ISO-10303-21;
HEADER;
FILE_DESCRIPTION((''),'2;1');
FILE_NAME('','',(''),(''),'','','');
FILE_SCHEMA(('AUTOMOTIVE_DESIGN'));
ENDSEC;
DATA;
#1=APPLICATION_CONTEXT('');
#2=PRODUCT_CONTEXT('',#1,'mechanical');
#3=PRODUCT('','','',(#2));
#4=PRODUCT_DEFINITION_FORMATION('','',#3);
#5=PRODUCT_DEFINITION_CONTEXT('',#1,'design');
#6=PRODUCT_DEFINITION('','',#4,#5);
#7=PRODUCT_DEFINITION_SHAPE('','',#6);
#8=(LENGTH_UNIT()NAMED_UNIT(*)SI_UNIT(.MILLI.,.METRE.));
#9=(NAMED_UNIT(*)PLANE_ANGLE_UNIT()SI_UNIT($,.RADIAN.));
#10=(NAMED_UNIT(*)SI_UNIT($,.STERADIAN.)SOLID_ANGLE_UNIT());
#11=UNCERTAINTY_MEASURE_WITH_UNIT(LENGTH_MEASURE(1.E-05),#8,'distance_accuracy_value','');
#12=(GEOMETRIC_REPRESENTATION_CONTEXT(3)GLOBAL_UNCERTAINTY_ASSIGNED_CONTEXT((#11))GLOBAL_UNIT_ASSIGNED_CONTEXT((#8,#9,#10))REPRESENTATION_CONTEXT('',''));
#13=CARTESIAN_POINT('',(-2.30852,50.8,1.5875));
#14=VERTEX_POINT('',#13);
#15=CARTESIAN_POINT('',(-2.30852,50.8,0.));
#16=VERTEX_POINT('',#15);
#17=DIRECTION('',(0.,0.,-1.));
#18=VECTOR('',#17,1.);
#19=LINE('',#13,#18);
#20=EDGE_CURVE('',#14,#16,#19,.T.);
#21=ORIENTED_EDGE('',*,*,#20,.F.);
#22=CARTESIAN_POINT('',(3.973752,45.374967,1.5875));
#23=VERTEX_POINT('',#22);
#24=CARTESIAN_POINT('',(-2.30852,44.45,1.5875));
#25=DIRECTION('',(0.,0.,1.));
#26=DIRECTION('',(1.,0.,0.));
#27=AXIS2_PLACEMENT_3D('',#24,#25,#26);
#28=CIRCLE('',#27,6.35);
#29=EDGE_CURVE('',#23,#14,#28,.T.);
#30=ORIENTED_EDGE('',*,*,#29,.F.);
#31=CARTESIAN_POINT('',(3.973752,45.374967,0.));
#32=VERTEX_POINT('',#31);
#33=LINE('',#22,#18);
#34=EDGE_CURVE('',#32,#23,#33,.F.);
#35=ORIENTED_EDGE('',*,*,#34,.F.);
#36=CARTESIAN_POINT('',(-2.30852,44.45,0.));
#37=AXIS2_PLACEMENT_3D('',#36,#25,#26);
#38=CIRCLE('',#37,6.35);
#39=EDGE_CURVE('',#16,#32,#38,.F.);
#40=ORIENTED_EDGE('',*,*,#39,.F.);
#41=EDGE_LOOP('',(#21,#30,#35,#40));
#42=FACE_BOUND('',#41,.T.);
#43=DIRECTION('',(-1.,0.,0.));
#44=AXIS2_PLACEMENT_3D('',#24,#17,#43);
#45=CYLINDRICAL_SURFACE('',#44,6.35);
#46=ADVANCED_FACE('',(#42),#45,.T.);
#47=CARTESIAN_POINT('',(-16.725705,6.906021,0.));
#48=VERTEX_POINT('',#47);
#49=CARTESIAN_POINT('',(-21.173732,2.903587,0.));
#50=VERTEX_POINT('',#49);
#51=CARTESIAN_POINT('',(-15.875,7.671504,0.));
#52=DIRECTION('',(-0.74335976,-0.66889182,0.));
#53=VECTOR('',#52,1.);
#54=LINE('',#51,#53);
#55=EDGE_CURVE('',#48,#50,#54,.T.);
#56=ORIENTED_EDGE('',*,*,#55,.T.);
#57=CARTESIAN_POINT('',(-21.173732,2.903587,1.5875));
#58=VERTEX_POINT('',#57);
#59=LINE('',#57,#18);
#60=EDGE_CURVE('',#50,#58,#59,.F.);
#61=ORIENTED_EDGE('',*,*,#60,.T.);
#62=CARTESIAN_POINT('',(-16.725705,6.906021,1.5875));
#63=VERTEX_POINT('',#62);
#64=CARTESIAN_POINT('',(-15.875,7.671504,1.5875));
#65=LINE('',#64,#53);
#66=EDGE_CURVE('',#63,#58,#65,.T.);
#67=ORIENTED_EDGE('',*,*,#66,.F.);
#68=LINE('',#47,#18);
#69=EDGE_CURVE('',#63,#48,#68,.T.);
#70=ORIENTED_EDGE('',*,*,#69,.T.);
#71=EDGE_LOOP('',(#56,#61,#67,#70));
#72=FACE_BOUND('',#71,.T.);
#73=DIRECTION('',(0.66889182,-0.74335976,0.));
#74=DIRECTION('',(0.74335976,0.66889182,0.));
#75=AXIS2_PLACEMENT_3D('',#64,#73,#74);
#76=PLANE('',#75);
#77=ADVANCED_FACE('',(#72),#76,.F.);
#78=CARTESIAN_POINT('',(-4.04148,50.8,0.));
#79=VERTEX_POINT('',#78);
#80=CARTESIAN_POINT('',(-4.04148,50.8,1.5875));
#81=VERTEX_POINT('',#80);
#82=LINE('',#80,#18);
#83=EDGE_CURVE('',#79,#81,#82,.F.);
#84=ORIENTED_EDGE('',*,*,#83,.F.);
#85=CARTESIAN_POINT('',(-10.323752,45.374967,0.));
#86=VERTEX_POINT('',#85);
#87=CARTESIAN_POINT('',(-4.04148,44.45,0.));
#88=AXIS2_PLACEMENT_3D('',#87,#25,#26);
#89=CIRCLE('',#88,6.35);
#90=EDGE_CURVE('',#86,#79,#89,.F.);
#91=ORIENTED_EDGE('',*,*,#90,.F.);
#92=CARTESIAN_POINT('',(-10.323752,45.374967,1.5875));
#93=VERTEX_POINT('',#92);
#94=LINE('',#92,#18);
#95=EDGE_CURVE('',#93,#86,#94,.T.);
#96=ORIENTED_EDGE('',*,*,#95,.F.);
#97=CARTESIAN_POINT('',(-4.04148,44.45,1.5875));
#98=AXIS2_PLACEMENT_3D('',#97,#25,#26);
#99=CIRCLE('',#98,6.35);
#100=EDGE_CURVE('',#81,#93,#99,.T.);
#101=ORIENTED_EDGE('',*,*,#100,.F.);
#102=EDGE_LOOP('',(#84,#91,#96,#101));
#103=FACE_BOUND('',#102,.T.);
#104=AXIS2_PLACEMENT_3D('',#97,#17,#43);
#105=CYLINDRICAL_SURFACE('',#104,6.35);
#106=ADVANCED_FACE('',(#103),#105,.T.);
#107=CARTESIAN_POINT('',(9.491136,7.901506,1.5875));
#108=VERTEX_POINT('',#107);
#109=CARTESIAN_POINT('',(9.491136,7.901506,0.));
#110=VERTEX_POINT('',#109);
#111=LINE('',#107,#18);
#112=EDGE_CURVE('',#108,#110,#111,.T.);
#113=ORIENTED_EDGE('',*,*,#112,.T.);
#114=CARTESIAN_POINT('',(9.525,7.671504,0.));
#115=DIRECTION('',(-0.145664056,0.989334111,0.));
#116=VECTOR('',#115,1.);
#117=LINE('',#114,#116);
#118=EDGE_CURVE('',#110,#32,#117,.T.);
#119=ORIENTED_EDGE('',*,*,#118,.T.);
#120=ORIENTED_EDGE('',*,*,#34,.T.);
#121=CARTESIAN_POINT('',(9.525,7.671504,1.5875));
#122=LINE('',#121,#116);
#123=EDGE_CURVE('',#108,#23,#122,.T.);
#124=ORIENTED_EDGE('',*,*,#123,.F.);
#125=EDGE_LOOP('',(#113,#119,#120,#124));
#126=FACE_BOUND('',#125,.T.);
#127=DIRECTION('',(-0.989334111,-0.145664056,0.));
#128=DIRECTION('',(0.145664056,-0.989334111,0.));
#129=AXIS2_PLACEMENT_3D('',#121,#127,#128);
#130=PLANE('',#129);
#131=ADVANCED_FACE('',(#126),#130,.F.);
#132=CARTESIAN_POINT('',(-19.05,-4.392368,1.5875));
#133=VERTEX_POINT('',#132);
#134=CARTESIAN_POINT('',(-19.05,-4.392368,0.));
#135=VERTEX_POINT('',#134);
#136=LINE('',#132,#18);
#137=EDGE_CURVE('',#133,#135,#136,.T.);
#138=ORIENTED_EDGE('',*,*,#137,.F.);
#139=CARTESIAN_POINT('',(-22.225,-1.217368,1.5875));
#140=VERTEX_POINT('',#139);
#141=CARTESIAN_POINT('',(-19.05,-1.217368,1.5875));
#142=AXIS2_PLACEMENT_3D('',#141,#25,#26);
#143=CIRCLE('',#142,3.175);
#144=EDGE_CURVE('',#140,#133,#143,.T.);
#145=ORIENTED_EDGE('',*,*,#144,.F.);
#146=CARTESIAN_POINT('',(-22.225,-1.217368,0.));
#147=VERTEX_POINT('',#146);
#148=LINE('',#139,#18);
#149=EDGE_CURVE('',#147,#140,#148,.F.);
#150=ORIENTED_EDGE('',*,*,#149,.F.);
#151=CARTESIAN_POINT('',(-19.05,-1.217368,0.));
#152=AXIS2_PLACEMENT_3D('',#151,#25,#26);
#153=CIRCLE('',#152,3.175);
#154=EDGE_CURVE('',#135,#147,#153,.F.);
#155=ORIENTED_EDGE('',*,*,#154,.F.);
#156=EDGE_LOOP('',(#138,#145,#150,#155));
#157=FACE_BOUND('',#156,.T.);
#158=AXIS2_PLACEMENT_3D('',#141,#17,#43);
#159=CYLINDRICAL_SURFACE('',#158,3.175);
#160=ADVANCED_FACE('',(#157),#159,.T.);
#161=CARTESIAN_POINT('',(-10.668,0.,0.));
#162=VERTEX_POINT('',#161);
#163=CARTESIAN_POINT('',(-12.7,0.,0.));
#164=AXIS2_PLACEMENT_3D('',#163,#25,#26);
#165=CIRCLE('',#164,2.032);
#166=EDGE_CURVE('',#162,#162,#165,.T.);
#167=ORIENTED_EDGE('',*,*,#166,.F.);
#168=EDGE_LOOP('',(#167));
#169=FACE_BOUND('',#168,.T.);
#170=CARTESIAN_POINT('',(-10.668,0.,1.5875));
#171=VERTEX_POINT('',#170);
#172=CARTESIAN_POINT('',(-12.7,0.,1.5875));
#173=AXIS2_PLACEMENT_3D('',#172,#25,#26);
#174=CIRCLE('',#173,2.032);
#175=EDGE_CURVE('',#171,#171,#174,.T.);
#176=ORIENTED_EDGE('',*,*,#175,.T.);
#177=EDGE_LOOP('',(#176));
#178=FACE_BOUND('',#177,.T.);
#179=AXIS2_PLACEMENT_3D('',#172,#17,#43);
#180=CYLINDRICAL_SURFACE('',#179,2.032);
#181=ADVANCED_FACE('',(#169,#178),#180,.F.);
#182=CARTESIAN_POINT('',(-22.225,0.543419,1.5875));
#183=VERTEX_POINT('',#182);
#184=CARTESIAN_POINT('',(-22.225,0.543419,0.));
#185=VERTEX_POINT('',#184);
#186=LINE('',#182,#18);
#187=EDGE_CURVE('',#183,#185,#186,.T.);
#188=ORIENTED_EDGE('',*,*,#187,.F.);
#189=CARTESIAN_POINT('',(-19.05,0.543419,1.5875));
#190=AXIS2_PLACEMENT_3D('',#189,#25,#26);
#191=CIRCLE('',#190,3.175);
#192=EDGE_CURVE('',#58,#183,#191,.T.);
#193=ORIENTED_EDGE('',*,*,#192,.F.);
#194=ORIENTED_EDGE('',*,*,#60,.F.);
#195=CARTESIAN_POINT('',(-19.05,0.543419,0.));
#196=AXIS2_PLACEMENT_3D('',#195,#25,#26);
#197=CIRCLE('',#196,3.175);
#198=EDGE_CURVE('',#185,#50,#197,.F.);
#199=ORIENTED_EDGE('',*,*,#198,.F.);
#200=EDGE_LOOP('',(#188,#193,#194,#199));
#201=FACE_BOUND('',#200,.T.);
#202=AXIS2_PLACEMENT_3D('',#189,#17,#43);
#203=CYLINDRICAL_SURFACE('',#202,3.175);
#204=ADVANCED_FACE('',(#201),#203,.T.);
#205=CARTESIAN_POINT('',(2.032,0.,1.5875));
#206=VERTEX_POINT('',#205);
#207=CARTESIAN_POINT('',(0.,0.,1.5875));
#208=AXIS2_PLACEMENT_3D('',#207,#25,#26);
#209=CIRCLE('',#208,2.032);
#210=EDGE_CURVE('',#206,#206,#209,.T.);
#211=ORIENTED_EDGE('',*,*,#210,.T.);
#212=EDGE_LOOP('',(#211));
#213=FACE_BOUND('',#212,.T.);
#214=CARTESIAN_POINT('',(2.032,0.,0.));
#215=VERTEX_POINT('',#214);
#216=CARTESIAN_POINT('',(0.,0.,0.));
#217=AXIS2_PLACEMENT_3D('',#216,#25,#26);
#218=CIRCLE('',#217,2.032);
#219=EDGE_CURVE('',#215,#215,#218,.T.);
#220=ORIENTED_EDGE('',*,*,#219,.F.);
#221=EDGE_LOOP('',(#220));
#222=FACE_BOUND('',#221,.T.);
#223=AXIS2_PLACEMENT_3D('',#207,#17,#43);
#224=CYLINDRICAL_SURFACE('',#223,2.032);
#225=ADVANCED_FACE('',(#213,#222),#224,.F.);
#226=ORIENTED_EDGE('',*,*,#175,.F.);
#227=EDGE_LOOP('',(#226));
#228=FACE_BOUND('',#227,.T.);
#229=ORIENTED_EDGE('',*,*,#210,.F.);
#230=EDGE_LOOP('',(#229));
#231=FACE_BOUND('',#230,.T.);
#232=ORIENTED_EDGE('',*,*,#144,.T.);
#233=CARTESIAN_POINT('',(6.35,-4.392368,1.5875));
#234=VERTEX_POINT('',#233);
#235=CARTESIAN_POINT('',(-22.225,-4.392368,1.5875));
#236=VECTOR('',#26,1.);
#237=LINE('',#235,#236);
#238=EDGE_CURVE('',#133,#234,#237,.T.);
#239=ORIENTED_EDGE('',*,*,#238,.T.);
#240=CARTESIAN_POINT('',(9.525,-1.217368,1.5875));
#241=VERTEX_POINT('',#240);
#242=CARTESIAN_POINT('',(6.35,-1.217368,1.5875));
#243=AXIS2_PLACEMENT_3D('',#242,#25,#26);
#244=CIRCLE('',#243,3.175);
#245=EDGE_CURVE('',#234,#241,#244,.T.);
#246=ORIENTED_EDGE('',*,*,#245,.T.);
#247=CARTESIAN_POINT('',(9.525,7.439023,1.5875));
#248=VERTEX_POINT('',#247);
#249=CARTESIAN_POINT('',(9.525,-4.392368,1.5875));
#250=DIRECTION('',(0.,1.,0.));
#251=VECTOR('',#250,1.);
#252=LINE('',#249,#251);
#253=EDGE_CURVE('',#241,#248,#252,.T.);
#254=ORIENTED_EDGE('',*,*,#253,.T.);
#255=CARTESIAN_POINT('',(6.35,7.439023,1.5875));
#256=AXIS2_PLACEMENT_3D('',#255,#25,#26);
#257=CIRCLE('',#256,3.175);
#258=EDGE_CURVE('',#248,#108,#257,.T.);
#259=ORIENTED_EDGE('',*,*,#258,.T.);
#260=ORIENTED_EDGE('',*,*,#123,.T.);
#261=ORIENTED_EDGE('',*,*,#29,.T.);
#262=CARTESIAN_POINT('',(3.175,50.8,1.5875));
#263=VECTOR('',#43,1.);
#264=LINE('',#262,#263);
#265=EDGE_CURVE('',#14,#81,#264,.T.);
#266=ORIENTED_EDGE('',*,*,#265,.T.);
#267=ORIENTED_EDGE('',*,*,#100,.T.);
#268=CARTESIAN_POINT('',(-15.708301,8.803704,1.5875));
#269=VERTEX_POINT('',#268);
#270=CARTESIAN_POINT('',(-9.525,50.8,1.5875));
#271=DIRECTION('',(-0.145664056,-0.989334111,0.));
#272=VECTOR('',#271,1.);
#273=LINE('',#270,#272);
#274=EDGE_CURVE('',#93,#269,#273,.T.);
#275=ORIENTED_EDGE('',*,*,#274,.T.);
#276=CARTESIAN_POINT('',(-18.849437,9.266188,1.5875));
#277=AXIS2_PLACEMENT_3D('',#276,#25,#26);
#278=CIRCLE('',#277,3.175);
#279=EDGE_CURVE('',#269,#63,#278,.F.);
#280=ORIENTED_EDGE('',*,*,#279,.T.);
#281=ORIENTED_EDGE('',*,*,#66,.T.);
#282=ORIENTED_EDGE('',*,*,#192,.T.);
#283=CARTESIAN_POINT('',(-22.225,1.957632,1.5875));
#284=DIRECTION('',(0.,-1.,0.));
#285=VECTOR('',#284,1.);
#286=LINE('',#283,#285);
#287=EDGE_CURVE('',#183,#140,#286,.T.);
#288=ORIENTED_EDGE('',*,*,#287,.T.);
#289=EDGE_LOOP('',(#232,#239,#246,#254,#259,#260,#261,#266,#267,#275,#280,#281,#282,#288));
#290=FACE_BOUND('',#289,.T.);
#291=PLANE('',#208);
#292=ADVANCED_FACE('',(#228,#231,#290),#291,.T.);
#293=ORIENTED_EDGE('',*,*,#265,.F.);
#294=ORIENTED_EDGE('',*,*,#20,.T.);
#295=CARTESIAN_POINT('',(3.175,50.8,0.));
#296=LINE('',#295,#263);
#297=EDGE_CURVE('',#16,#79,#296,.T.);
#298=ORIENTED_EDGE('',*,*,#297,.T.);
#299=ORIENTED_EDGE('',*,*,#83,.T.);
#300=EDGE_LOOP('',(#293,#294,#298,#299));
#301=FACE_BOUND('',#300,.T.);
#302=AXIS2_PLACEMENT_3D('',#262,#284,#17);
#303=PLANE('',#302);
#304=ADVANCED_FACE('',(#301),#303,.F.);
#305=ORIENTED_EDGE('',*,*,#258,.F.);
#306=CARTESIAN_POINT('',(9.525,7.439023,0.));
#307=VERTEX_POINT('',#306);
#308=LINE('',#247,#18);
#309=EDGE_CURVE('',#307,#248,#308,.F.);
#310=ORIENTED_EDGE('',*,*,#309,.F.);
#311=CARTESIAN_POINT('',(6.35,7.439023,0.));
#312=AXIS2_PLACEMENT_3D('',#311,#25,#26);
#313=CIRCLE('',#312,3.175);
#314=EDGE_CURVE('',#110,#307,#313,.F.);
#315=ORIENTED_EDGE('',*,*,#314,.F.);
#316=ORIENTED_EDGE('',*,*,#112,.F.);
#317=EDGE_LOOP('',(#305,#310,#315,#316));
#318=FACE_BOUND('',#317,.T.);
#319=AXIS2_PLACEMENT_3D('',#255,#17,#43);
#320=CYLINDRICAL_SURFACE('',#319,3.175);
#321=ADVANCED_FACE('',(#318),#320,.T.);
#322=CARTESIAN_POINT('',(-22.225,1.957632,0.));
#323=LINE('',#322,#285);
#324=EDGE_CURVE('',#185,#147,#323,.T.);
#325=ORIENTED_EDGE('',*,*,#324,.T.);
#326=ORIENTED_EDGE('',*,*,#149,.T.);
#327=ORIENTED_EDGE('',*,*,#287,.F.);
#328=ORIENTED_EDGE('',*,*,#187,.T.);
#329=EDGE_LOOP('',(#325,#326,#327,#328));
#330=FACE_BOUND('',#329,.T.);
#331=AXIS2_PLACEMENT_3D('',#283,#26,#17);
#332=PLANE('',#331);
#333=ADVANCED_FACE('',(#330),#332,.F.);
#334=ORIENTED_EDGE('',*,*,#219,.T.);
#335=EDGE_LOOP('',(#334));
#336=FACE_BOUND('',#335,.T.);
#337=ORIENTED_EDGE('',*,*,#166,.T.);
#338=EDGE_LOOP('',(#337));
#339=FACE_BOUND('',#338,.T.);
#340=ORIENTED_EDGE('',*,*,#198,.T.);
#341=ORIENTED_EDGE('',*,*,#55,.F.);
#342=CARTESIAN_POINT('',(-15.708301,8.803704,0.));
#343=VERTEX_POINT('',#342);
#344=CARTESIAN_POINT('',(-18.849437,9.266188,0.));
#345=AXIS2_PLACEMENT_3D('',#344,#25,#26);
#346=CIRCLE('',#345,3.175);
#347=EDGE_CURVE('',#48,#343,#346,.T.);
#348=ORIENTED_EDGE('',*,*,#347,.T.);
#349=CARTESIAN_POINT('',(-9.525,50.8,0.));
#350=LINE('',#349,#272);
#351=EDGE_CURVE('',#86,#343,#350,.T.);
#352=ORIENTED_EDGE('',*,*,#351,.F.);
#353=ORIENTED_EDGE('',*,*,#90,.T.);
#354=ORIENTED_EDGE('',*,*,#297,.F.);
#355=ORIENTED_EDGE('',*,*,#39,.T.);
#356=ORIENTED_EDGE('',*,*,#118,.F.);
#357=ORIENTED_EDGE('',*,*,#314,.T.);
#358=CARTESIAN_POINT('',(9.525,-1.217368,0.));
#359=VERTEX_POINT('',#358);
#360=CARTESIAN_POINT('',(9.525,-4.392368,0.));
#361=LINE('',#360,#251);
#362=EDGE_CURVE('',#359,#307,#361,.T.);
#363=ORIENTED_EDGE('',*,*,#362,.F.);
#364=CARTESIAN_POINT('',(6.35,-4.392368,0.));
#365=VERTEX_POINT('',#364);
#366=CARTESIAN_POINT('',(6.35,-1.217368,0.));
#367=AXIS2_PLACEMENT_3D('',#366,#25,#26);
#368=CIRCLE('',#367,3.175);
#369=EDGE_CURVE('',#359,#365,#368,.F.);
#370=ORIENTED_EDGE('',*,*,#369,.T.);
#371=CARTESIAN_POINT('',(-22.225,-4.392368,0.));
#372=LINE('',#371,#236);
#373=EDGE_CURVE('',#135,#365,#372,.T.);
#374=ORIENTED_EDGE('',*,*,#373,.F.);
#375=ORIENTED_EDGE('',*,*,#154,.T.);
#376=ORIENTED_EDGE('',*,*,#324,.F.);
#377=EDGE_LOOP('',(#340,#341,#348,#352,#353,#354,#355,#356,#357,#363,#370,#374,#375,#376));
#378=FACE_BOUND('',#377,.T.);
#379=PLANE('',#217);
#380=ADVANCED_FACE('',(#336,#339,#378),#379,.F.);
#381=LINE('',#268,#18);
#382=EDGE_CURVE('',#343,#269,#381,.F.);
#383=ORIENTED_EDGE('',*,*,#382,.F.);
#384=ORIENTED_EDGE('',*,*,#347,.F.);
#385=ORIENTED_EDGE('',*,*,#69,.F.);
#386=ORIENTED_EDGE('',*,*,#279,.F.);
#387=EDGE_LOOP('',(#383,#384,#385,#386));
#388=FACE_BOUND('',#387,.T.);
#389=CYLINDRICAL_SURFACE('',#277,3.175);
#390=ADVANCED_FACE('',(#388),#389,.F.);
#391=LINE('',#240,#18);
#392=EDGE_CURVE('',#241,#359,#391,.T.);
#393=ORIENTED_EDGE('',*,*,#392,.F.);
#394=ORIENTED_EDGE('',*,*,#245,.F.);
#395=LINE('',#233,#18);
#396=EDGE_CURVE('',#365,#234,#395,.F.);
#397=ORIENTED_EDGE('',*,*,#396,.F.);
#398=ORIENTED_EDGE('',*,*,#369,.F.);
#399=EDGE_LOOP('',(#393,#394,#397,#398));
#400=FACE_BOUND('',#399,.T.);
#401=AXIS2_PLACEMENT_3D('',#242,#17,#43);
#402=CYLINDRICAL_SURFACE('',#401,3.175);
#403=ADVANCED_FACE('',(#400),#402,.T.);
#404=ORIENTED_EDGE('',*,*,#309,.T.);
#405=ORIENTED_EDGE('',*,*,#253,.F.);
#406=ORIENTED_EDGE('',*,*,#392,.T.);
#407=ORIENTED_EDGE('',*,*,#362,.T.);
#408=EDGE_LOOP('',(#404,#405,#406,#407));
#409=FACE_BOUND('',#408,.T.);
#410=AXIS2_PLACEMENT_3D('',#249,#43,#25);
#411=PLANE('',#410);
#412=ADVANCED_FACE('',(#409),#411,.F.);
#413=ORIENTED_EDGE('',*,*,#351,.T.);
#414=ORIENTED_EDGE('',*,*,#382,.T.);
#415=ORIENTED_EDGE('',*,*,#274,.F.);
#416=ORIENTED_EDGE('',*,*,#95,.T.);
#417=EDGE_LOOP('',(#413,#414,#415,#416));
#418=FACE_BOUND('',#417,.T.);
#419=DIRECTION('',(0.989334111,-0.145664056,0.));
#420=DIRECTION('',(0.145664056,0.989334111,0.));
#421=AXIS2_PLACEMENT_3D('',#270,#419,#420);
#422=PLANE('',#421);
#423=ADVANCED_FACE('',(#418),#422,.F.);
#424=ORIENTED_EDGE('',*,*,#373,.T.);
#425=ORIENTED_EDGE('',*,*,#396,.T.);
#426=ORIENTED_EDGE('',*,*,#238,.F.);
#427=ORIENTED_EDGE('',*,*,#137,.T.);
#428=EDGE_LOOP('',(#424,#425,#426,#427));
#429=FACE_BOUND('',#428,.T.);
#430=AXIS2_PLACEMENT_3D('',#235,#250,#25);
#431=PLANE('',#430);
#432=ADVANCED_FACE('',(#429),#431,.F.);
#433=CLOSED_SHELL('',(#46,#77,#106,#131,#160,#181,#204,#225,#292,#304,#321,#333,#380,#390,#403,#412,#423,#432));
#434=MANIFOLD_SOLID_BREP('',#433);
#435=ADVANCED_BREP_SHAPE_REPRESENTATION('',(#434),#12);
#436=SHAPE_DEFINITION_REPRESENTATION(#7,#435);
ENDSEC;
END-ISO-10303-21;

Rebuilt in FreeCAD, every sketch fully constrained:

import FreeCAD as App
import Part
import Sketcher

V = App.Vector
Q = App.Units.Quantity


def edges_at(feature, points):
    """Names of the edges that pass closest to the given points."""
    edges = feature.Shape.Edges
    near = lambda p: min(range(len(edges)), key=lambda i: edges[i].distToShape(Part.Vertex(*p))[0])
    return sorted({f"Edge{near(p) + 1}" for p in points})

doc = App.newDocument("Part")
body = doc.addObject("PartDesign::Body", "Body")

# Sketch on XY plane
sketch1 = body.newObject("Sketcher::SketchObject", "Sketch")
sketch1.AttachmentSupport = (doc.getObject("XY_Plane"), [""])
sketch1.MapMode = "FlatFace"
sketch1.addGeometry([
    Part.LineSegment(V(9.525, -4.392368, 0), V(9.525, 7.671504, 0)),  # 0
    Part.LineSegment(V(9.525, 7.671504, 0), V(3.175, 50.8, 0)),  # 1
    Part.LineSegment(V(3.175, 50.8, 0), V(-9.525, 50.8, 0)),  # 2
    Part.LineSegment(V(-9.525, 50.8, 0), V(-15.875, 7.671504, 0)),  # 3
    Part.LineSegment(V(-15.875, 7.671504, 0), V(-22.225, 1.957632, 0)),  # 4
    Part.LineSegment(V(-22.225, 1.957632, 0), V(-22.225, -4.392368, 0)),  # 5
    Part.LineSegment(V(-22.225, -4.392368, 0), V(9.525, -4.392368, 0)),  # 6
    Part.Circle(V(-12.7, 0, 0), V(0, 0, 1), 2.032),  # 7
    Part.Circle(V(0, 0, 0), V(0, 0, 1), 2.032),  # 8
], False)
sketch1.addConstraint([
    Sketcher.Constraint("Coincident", 0, 2, 1, 1),
    Sketcher.Constraint("Coincident", 1, 2, 2, 1),
    Sketcher.Constraint("Coincident", 2, 2, 3, 1),
    Sketcher.Constraint("Coincident", 3, 2, 4, 1),
    Sketcher.Constraint("Coincident", 4, 2, 5, 1),
    Sketcher.Constraint("Coincident", 5, 2, 6, 1),
    Sketcher.Constraint("Coincident", 6, 2, 0, 1),
    Sketcher.Constraint("Vertical", 0),
    Sketcher.Constraint("Horizontal", 2),
    Sketcher.Constraint("Vertical", 5),
    Sketcher.Constraint("Horizontal", 6),
    Sketcher.Constraint("Coincident", 8, 3, -1, 1),
    Sketcher.Constraint("Equal", 7, 8),
    Sketcher.Constraint("PointOnObject", 7, 3, -1),
    Sketcher.Constraint("Horizontal", 0, 2, 3, 2),
    Sketcher.Constraint("Equal", 1, 3),
    Sketcher.Constraint("Diameter", 7, Q("0.16 in")),
    Sketcher.Constraint("DistanceX", 2, 2, 2, 1, Q("0.5 in")),
    Sketcher.Constraint("DistanceY", -1, 1, 1, 2, Q("2 in")),
    Sketcher.Constraint("DistanceX", 3, 2, 0, 2, Q("1 in")),
    Sketcher.Constraint("DistanceX", 6, 1, 6, 2, Q("1.25 in")),
    Sketcher.Constraint("DistanceY", 5, 2, 5, 1, Q("0.25 in")),
    Sketcher.Constraint("DistanceX", 7, 3, -1, 1, Q("0.5 in")),
    Sketcher.Constraint("DistanceX", -1, 1, 0, 2, Q("0.375 in")),
    Sketcher.Constraint("Distance", 1, 43.593459),
    Sketcher.Constraint("DistanceY", 0, 1, 0, 2, 12.063873),
])
pad1 = body.newObject("PartDesign::Pad", "Pad")
pad1.Profile = sketch1
pad1.Length = Q("0.0625 in")
doc.recompute()

fillet = body.newObject("PartDesign::Fillet", "Fillet")
fillet.Base = (pad1, edges_at(pad1, [(-9.525, 50.8, 0.794), (3.175, 50.8, 0.794)]))
fillet.Radius = Q("0.25 in")
doc.recompute()

fillet2 = body.newObject("PartDesign::Fillet", "Fillet001")
fillet2.Base = (fillet, edges_at(fillet, [
    (-22.225, -4.392, 0.794),
    (-22.225, 1.958, 0.794),
    (-15.875, 7.672, 0.794),
    (9.525, 7.672, 0.794),
    (9.525, -4.392, 0.794),
]))
fillet2.Radius = Q("0.125 in")

doc.recompute()
